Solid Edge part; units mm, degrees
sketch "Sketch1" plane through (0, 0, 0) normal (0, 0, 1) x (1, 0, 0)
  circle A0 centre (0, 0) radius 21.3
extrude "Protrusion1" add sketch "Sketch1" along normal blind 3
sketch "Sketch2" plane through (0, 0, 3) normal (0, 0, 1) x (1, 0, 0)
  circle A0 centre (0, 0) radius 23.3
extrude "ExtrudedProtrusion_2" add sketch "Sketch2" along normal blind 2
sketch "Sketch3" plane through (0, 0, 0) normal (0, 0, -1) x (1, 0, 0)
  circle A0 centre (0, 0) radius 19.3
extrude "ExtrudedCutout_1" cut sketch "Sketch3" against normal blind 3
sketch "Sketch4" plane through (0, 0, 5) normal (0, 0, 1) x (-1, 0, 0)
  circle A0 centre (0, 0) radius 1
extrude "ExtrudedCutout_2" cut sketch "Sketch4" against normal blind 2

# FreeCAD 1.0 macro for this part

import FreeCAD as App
import Part
import Sketcher

doc = App.newDocument("Part")
body = doc.addObject("PartDesign::Body", "Body")

# Sketch on XY plane
sketch1 = doc.addObject("Sketcher::SketchObject", "Sketch")
body.addObject(sketch1)
sketch1.AttachmentSupport = (doc.XY_Plane, [""])
sketch1.MapMode = "FlatFace"
sketch1.addGeometry(Part.Circle(App.Vector(0, 0, 0), App.Vector(0, 0, 1), 21), False)
sketch1.addConstraint([
    Sketcher.Constraint("Coincident", 0, 3, -1, 1),
    Sketcher.Constraint("Diameter", 0, 42.6),
])
pad1 = doc.addObject("PartDesign::Pad", "Pad")
body.addObject(pad1)
pad1.Profile = sketch1
pad1.Length = 3

# Sketch on XY plane
sketch2 = doc.addObject("Sketcher::SketchObject", "Sketch001")
body.addObject(sketch2)
sketch2.AttachmentSupport = (doc.XY_Plane, [""])
sketch2.MapMode = "FlatFace"
sketch2.AttachmentOffset = App.Placement(App.Vector(0, 0, 3), App.Rotation())
sketch2.addGeometry(Part.Circle(App.Vector(0, 0, 0), App.Vector(0, 0, 1), 23), False)
sketch2.addConstraint([
    Sketcher.Constraint("Coincident", 0, 3, -1, 1),
    Sketcher.Constraint("Diameter", 0, 46.6),
])
pad2 = doc.addObject("PartDesign::Pad", "Pad001")
body.addObject(pad2)
pad2.Profile = sketch2
pad2.Length = 2

# Sketch on XY plane
sketch3 = doc.addObject("Sketcher::SketchObject", "Sketch002")
body.addObject(sketch3)
sketch3.AttachmentSupport = (doc.XY_Plane, [""])
sketch3.MapMode = "FlatFace"
sketch3.addGeometry(Part.Circle(App.Vector(0, 0, 0), App.Vector(0, 0, 1), 19), False)
sketch3.addConstraint([
    Sketcher.Constraint("Coincident", 0, 3, -1, 1),
    Sketcher.Constraint("Diameter", 0, 38.6),
])
pocket1 = doc.addObject("PartDesign::Pocket", "Pocket")
body.addObject(pocket1)
pocket1.Profile = sketch3
pocket1.Length = 3
pocket1.Reversed = True

# Sketch on XY plane
sketch4 = doc.addObject("Sketcher::SketchObject", "Sketch003")
body.addObject(sketch4)
sketch4.AttachmentSupport = (doc.XY_Plane, [""])
sketch4.MapMode = "FlatFace"
sketch4.AttachmentOffset = App.Placement(App.Vector(0, 0, 5), App.Rotation())
sketch4.addGeometry(Part.Circle(App.Vector(0, 0, 0), App.Vector(0, 0, 1), 1), False)
sketch4.addConstraint([
    Sketcher.Constraint("Coincident", 0, 3, -1, 1),
    Sketcher.Constraint("Diameter", 0, 2.0),
])
pocket2 = doc.addObject("PartDesign::Pocket", "Pocket001")
body.addObject(pocket2)
pocket2.Profile = sketch4
pocket2.Length = 2

doc.recompute()
